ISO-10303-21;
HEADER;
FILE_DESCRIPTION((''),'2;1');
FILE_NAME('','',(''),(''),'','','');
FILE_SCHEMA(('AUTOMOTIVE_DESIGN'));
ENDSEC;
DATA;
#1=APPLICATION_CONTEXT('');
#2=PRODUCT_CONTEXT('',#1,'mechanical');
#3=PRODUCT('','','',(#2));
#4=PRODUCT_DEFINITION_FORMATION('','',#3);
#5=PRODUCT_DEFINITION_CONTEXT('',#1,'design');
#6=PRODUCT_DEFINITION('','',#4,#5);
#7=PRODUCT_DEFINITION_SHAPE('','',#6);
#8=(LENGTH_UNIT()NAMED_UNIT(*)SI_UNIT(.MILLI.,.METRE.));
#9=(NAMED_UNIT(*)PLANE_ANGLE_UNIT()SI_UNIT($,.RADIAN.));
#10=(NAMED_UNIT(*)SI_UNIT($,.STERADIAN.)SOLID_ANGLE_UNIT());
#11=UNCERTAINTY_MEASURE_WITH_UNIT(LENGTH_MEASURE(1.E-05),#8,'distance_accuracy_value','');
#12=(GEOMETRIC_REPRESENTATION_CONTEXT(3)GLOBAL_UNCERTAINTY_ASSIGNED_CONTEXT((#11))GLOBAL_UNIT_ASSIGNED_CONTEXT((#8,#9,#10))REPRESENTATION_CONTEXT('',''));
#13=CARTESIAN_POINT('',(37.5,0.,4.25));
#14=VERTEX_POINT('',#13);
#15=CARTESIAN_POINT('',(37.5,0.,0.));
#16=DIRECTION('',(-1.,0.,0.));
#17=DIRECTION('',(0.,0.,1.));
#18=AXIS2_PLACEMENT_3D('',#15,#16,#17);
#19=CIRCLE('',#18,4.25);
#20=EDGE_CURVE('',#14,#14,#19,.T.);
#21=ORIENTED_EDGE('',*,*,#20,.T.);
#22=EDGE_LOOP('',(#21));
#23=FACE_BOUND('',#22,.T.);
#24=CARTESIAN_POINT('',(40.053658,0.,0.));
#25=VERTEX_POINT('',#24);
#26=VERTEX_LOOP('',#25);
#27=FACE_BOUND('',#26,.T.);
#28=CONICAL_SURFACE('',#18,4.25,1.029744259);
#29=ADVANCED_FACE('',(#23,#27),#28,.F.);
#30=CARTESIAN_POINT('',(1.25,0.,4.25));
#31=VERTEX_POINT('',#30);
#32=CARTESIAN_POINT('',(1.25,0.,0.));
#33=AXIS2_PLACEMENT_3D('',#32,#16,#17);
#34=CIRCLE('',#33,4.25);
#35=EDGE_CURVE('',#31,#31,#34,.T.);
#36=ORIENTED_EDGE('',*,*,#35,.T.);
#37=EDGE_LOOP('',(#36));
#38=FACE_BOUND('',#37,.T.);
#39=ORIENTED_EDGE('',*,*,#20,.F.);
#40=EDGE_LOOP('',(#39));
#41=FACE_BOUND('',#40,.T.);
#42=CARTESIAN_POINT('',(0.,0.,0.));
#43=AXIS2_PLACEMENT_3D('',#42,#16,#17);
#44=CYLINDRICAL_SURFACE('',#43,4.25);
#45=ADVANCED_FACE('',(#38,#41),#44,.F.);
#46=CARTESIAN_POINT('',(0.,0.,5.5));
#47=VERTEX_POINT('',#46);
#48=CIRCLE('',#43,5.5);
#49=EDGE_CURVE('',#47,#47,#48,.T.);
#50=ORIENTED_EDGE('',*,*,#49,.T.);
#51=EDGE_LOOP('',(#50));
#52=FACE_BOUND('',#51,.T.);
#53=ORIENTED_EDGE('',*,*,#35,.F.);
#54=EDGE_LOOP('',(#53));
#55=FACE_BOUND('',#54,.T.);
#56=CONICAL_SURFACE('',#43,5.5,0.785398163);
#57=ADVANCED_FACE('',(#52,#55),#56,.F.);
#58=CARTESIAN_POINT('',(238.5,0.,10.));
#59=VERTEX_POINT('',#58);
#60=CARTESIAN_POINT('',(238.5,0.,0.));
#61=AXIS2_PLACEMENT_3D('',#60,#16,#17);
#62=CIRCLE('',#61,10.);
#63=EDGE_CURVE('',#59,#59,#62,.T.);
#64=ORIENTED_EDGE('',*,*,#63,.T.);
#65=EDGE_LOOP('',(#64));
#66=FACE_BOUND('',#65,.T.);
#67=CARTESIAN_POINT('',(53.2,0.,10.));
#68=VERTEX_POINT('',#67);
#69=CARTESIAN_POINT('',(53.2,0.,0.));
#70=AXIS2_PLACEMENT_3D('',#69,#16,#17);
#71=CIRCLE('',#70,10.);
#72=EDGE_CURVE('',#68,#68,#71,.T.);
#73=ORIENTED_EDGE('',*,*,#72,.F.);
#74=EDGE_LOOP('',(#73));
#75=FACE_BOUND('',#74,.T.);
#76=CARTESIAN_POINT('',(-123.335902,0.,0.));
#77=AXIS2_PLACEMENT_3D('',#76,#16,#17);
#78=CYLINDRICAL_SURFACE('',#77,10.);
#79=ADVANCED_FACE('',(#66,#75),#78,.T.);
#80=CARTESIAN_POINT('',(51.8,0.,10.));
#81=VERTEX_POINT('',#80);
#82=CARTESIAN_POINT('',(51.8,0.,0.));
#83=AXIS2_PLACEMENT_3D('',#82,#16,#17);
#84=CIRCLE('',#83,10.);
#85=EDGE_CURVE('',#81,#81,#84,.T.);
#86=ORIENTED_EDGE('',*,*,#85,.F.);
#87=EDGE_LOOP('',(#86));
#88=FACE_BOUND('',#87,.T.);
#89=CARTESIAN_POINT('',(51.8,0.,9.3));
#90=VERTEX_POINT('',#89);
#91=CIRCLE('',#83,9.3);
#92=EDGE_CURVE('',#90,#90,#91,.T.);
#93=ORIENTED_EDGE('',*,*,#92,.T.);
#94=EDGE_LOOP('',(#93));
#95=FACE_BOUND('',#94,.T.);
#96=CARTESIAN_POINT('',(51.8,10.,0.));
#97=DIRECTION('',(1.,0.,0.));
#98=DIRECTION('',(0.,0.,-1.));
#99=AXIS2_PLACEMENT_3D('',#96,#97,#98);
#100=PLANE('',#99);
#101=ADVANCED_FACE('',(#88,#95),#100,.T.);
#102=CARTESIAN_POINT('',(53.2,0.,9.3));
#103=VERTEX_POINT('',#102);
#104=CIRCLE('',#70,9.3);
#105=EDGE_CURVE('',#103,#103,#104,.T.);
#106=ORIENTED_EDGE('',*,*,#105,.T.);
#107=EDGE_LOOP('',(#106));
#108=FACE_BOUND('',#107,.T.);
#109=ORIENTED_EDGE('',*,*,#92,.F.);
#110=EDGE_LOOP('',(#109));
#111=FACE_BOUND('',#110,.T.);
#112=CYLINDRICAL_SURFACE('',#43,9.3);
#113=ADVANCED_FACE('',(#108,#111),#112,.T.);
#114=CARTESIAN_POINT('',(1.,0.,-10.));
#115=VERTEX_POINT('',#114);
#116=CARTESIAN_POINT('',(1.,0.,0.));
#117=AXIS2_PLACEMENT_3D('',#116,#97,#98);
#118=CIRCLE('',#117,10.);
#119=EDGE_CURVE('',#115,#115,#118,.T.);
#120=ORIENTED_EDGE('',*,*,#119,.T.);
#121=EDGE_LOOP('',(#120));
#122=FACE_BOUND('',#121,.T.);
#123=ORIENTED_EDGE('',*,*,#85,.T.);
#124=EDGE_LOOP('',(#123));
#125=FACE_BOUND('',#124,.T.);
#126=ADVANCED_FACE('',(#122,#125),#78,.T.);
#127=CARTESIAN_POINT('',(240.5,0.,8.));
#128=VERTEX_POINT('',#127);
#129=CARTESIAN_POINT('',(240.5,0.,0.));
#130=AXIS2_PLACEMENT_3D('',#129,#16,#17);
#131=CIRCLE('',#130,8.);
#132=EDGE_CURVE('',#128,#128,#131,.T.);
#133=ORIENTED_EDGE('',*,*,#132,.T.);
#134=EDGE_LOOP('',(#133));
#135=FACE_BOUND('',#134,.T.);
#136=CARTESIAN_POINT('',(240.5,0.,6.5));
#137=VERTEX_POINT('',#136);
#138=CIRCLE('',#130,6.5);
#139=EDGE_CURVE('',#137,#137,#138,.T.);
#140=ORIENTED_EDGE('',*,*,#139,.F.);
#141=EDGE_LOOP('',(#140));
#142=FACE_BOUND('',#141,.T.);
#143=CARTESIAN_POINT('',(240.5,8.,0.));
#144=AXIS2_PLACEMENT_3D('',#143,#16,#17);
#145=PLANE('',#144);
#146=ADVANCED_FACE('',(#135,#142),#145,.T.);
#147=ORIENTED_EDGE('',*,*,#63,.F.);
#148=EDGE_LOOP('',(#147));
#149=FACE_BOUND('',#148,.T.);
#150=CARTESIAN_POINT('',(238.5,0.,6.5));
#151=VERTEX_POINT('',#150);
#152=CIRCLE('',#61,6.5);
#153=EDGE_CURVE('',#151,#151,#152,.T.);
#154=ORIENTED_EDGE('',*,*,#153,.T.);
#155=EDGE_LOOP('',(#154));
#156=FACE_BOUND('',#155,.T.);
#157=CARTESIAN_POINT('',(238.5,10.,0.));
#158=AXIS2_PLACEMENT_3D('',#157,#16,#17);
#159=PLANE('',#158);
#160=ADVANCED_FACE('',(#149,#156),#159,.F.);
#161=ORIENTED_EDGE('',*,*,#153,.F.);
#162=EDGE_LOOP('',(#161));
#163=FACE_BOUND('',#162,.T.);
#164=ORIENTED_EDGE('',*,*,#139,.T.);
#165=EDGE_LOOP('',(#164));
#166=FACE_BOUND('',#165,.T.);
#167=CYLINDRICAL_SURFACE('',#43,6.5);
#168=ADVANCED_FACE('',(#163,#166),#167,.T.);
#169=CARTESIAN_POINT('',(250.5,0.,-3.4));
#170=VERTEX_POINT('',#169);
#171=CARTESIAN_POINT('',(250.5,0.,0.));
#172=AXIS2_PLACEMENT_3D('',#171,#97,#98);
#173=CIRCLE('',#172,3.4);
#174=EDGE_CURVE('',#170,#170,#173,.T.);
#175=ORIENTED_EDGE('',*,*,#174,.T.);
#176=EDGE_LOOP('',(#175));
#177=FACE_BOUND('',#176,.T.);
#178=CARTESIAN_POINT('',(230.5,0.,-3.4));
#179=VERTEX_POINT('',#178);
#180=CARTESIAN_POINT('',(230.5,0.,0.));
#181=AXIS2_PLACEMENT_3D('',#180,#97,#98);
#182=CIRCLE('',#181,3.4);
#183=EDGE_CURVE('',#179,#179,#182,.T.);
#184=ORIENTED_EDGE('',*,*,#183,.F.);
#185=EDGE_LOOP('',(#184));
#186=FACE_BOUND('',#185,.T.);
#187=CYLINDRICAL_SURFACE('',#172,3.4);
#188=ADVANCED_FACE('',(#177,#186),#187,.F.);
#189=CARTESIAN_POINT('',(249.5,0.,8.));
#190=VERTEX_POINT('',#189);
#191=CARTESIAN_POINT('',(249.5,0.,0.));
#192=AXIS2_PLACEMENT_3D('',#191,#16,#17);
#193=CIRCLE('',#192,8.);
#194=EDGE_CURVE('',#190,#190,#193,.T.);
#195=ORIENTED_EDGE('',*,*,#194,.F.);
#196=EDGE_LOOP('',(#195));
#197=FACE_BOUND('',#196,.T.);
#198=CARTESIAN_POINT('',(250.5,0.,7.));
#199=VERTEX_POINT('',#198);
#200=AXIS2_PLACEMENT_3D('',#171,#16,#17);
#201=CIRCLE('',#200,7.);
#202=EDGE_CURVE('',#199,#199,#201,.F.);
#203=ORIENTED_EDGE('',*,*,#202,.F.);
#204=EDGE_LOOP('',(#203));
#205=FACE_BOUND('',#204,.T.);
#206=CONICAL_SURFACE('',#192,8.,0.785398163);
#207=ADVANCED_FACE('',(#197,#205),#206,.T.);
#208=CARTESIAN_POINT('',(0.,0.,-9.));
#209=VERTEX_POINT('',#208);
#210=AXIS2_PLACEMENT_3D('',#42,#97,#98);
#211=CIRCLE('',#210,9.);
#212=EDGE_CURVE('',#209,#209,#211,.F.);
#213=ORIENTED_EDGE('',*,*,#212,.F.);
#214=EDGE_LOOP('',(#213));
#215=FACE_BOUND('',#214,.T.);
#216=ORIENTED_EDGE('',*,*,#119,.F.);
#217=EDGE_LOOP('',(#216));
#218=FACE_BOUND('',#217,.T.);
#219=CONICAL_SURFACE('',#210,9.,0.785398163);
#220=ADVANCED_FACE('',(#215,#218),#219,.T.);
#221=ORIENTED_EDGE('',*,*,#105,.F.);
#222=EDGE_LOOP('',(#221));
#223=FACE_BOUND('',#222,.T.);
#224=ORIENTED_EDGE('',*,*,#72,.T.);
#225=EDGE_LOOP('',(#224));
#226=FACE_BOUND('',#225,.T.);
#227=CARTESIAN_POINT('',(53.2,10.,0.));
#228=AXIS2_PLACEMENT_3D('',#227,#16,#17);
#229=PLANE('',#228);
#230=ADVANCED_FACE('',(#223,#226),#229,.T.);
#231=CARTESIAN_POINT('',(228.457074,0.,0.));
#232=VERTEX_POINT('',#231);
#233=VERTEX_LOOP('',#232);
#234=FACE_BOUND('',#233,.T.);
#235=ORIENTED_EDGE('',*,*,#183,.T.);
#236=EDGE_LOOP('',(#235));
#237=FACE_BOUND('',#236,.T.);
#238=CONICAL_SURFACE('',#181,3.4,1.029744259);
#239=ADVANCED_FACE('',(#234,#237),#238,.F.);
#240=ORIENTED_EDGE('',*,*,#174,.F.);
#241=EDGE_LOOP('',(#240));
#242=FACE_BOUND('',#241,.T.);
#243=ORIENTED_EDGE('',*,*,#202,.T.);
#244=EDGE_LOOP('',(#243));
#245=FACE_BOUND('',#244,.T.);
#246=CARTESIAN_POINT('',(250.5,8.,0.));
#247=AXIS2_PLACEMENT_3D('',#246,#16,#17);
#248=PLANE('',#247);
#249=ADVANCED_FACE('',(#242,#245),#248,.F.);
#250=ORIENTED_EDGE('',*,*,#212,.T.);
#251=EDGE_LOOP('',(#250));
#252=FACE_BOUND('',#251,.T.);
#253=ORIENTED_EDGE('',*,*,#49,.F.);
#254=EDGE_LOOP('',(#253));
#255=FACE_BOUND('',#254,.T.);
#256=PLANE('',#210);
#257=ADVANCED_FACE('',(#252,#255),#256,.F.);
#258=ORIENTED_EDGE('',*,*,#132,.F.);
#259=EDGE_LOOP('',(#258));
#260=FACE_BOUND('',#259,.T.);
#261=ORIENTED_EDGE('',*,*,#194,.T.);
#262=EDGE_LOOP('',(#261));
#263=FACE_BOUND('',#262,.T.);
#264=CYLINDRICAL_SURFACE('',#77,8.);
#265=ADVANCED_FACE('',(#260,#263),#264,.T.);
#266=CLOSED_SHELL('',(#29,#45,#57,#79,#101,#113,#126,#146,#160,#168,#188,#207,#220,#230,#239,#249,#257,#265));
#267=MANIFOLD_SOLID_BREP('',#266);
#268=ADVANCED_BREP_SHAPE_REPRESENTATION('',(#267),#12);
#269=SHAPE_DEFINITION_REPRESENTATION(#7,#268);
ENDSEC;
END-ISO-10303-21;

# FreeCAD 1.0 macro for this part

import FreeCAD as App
import Part
import Sketcher


def edges_at(feature, points):
    """Names of the edges that pass closest to the given points."""
    edges = feature.Shape.Edges
    near = lambda p: min(range(len(edges)), key=lambda i: edges[i].distToShape(Part.Vertex(*p))[0])
    return sorted({f"Edge{near(p) + 1}" for p in points})


def add_polygon(sketch, points):
    """Adds a closed chain of lines whose ends are joined by coincident constraints."""
    first, n = sketch.GeometryCount, len(points)
    for a, b in zip(points, points[1:] + points[:1]):
        sketch.addGeometry(Part.LineSegment(App.Vector(*a, 0), App.Vector(*b, 0)), False)
    for i in range(n):
        sketch.addConstraint(Sketcher.Constraint("Coincident", first + i, 2, first + (i + 1) % n, 1))

doc = App.newDocument("Part")
body = doc.addObject("PartDesign::Body", "Body")

sketch1 = body.newObject("Sketcher::SketchObject", "Sketch")
sketch1.AttachmentSupport = (doc.getObject("XY_Plane"), [""])
sketch1.MapMode = "FlatFace"
add_polygon(sketch1, [(238.5, 10), (0, 10), (0, 0), (250.5, 0), (250.5, 8), (238.5, 8)])
sketch1.addConstraint([
    Sketcher.Constraint("Horizontal", 0),
    Sketcher.Constraint("Vertical", 1),
    Sketcher.Constraint("Horizontal", 2),
    Sketcher.Constraint("Vertical", 3),
    Sketcher.Constraint("Horizontal", 4),
    Sketcher.Constraint("Vertical", 5),
    Sketcher.Constraint("Coincident", 1, 2, -1, 1),
    Sketcher.Constraint("DistanceX", 4, 2, 4, 1, 12.0),
    Sketcher.Constraint("DistanceY", 1, 2, 1, 1, 10.0),
    Sketcher.Constraint("DistanceY", 3, 1, 3, 2, 8.0),
    Sketcher.Constraint("DistanceX", 0, 2, 0, 1, 238.5),
])
revolution = body.newObject("PartDesign::Revolution", "Revolution")
revolution.Profile = sketch1
revolution.ReferenceAxis = (sketch1, ["H_Axis"])
revolution.Angle = 360

sketch2 = body.newObject("Sketcher::SketchObject", "Sketch001")
sketch2.AttachmentSupport = (doc.getObject("YZ_Plane"), [""])
sketch2.MapMode = "FlatFace"
sketch2.addGeometry(Part.Circle(App.Vector(0, 0, 0), App.Vector(0, 0, 1), 4.2), False)
sketch2.addConstraint([
    Sketcher.Constraint("Coincident", 0, 3, -1, 1),
    Sketcher.Constraint("Diameter", 0, 8.5),
])
doc.recompute()
hole = body.newObject("PartDesign::Hole", "Hole")
hole.Profile = sketch2
hole.ThreadType = "None"
hole.Diameter = 8.5
hole.DepthType = "Dimension"
hole.Depth = 37.5
hole.DrillPoint = "Angled"
hole.DrillPointAngle = 118
hole.HoleCutType = "Countersink"
hole.HoleCutDiameter = 11
hole.HoleCutCountersinkAngle = 90
hole.Reversed = True

sketch3 = body.newObject("Sketcher::SketchObject", "Sketch002")
sketch3.AttachmentSupport = (doc.getObject("YZ_Plane"), [""])
sketch3.MapMode = "FlatFace"
sketch3.AttachmentOffset = App.Placement(App.Vector(0, 0, 250.5), App.Rotation())
sketch3.addGeometry(Part.Circle(App.Vector(0, 0, 0), App.Vector(0, 0, 1), 3.4), False)
sketch3.addConstraint([
    Sketcher.Constraint("Coincident", 0, 3, -1, 1),
    Sketcher.Constraint("Diameter", 0, 6.8),
])
doc.recompute()
hole2 = body.newObject("PartDesign::Hole", "Hole001")
hole2.Profile = sketch3
hole2.ThreadType = "None"
hole2.Diameter = 6.8
hole2.DepthType = "Dimension"
hole2.Depth = 20
hole2.DrillPoint = "Angled"
hole2.DrillPointAngle = 118

sketch4 = body.newObject("Sketcher::SketchObject", "Sketch003")
sketch4.AttachmentSupport = (doc.getObject("XY_Plane"), [""])
sketch4.MapMode = "FlatFace"
add_polygon(sketch4, [(238.5, 8), (238.5, 6.5), (240.5, 6.5), (240.5, 8)])
sketch4.addConstraint([
    Sketcher.Constraint("Vertical", 0),
    Sketcher.Constraint("Horizontal", 1),
    Sketcher.Constraint("Vertical", 2),
    Sketcher.Constraint("Horizontal", 3),
    Sketcher.Constraint("DistanceX", 1, 1, 1, 2, 2.0),
    Sketcher.Constraint("DistanceY", 0, 2, 0, 1, 1.5),
    Sketcher.Constraint("DistanceY", -1, 1, 2, 2, 8.0),
    Sketcher.Constraint("DistanceX", -1, 1, 0, 2, 238.5),
])
groove = body.newObject("PartDesign::Groove", "Groove")
groove.Profile = sketch4
groove.ReferenceAxis = (sketch4, ["H_Axis"])
groove.Angle = 360

sketch5 = body.newObject("Sketcher::SketchObject", "Sketch004")
sketch5.AttachmentSupport = (doc.getObject("XY_Plane"), [""])
sketch5.MapMode = "FlatFace"
add_polygon(sketch5, [(51.8, 10), (51.8, 9.3), (53.2, 9.3), (53.2, 10)])
sketch5.addConstraint([
    Sketcher.Constraint("Vertical", 0),
    Sketcher.Constraint("Horizontal", 1),
    Sketcher.Constraint("Vertical", 2),
    Sketcher.Constraint("Horizontal", 3),
    Sketcher.Constraint("DistanceX", 1, 1, 1, 2, 1.4),
    Sketcher.Constraint("DistanceY", 0, 2, 0, 1, 0.7),
    Sketcher.Constraint("DistanceY", -1, 1, 2, 2, 10.0),
    Sketcher.Constraint("DistanceX", -1, 1, 0, 2, 51.8),
])
groove2 = body.newObject("PartDesign::Groove", "Groove001")
groove2.Profile = sketch5
groove2.ReferenceAxis = (sketch5, ["H_Axis"])
groove2.Angle = 360
doc.recompute()

chamfer = body.newObject("PartDesign::Chamfer", "Chamfer")
chamfer.Base = (groove2, edges_at(groove2, [(250.5, 0, -8), (0, 0, -10)]))
chamfer.Size = 1

doc.recompute()
